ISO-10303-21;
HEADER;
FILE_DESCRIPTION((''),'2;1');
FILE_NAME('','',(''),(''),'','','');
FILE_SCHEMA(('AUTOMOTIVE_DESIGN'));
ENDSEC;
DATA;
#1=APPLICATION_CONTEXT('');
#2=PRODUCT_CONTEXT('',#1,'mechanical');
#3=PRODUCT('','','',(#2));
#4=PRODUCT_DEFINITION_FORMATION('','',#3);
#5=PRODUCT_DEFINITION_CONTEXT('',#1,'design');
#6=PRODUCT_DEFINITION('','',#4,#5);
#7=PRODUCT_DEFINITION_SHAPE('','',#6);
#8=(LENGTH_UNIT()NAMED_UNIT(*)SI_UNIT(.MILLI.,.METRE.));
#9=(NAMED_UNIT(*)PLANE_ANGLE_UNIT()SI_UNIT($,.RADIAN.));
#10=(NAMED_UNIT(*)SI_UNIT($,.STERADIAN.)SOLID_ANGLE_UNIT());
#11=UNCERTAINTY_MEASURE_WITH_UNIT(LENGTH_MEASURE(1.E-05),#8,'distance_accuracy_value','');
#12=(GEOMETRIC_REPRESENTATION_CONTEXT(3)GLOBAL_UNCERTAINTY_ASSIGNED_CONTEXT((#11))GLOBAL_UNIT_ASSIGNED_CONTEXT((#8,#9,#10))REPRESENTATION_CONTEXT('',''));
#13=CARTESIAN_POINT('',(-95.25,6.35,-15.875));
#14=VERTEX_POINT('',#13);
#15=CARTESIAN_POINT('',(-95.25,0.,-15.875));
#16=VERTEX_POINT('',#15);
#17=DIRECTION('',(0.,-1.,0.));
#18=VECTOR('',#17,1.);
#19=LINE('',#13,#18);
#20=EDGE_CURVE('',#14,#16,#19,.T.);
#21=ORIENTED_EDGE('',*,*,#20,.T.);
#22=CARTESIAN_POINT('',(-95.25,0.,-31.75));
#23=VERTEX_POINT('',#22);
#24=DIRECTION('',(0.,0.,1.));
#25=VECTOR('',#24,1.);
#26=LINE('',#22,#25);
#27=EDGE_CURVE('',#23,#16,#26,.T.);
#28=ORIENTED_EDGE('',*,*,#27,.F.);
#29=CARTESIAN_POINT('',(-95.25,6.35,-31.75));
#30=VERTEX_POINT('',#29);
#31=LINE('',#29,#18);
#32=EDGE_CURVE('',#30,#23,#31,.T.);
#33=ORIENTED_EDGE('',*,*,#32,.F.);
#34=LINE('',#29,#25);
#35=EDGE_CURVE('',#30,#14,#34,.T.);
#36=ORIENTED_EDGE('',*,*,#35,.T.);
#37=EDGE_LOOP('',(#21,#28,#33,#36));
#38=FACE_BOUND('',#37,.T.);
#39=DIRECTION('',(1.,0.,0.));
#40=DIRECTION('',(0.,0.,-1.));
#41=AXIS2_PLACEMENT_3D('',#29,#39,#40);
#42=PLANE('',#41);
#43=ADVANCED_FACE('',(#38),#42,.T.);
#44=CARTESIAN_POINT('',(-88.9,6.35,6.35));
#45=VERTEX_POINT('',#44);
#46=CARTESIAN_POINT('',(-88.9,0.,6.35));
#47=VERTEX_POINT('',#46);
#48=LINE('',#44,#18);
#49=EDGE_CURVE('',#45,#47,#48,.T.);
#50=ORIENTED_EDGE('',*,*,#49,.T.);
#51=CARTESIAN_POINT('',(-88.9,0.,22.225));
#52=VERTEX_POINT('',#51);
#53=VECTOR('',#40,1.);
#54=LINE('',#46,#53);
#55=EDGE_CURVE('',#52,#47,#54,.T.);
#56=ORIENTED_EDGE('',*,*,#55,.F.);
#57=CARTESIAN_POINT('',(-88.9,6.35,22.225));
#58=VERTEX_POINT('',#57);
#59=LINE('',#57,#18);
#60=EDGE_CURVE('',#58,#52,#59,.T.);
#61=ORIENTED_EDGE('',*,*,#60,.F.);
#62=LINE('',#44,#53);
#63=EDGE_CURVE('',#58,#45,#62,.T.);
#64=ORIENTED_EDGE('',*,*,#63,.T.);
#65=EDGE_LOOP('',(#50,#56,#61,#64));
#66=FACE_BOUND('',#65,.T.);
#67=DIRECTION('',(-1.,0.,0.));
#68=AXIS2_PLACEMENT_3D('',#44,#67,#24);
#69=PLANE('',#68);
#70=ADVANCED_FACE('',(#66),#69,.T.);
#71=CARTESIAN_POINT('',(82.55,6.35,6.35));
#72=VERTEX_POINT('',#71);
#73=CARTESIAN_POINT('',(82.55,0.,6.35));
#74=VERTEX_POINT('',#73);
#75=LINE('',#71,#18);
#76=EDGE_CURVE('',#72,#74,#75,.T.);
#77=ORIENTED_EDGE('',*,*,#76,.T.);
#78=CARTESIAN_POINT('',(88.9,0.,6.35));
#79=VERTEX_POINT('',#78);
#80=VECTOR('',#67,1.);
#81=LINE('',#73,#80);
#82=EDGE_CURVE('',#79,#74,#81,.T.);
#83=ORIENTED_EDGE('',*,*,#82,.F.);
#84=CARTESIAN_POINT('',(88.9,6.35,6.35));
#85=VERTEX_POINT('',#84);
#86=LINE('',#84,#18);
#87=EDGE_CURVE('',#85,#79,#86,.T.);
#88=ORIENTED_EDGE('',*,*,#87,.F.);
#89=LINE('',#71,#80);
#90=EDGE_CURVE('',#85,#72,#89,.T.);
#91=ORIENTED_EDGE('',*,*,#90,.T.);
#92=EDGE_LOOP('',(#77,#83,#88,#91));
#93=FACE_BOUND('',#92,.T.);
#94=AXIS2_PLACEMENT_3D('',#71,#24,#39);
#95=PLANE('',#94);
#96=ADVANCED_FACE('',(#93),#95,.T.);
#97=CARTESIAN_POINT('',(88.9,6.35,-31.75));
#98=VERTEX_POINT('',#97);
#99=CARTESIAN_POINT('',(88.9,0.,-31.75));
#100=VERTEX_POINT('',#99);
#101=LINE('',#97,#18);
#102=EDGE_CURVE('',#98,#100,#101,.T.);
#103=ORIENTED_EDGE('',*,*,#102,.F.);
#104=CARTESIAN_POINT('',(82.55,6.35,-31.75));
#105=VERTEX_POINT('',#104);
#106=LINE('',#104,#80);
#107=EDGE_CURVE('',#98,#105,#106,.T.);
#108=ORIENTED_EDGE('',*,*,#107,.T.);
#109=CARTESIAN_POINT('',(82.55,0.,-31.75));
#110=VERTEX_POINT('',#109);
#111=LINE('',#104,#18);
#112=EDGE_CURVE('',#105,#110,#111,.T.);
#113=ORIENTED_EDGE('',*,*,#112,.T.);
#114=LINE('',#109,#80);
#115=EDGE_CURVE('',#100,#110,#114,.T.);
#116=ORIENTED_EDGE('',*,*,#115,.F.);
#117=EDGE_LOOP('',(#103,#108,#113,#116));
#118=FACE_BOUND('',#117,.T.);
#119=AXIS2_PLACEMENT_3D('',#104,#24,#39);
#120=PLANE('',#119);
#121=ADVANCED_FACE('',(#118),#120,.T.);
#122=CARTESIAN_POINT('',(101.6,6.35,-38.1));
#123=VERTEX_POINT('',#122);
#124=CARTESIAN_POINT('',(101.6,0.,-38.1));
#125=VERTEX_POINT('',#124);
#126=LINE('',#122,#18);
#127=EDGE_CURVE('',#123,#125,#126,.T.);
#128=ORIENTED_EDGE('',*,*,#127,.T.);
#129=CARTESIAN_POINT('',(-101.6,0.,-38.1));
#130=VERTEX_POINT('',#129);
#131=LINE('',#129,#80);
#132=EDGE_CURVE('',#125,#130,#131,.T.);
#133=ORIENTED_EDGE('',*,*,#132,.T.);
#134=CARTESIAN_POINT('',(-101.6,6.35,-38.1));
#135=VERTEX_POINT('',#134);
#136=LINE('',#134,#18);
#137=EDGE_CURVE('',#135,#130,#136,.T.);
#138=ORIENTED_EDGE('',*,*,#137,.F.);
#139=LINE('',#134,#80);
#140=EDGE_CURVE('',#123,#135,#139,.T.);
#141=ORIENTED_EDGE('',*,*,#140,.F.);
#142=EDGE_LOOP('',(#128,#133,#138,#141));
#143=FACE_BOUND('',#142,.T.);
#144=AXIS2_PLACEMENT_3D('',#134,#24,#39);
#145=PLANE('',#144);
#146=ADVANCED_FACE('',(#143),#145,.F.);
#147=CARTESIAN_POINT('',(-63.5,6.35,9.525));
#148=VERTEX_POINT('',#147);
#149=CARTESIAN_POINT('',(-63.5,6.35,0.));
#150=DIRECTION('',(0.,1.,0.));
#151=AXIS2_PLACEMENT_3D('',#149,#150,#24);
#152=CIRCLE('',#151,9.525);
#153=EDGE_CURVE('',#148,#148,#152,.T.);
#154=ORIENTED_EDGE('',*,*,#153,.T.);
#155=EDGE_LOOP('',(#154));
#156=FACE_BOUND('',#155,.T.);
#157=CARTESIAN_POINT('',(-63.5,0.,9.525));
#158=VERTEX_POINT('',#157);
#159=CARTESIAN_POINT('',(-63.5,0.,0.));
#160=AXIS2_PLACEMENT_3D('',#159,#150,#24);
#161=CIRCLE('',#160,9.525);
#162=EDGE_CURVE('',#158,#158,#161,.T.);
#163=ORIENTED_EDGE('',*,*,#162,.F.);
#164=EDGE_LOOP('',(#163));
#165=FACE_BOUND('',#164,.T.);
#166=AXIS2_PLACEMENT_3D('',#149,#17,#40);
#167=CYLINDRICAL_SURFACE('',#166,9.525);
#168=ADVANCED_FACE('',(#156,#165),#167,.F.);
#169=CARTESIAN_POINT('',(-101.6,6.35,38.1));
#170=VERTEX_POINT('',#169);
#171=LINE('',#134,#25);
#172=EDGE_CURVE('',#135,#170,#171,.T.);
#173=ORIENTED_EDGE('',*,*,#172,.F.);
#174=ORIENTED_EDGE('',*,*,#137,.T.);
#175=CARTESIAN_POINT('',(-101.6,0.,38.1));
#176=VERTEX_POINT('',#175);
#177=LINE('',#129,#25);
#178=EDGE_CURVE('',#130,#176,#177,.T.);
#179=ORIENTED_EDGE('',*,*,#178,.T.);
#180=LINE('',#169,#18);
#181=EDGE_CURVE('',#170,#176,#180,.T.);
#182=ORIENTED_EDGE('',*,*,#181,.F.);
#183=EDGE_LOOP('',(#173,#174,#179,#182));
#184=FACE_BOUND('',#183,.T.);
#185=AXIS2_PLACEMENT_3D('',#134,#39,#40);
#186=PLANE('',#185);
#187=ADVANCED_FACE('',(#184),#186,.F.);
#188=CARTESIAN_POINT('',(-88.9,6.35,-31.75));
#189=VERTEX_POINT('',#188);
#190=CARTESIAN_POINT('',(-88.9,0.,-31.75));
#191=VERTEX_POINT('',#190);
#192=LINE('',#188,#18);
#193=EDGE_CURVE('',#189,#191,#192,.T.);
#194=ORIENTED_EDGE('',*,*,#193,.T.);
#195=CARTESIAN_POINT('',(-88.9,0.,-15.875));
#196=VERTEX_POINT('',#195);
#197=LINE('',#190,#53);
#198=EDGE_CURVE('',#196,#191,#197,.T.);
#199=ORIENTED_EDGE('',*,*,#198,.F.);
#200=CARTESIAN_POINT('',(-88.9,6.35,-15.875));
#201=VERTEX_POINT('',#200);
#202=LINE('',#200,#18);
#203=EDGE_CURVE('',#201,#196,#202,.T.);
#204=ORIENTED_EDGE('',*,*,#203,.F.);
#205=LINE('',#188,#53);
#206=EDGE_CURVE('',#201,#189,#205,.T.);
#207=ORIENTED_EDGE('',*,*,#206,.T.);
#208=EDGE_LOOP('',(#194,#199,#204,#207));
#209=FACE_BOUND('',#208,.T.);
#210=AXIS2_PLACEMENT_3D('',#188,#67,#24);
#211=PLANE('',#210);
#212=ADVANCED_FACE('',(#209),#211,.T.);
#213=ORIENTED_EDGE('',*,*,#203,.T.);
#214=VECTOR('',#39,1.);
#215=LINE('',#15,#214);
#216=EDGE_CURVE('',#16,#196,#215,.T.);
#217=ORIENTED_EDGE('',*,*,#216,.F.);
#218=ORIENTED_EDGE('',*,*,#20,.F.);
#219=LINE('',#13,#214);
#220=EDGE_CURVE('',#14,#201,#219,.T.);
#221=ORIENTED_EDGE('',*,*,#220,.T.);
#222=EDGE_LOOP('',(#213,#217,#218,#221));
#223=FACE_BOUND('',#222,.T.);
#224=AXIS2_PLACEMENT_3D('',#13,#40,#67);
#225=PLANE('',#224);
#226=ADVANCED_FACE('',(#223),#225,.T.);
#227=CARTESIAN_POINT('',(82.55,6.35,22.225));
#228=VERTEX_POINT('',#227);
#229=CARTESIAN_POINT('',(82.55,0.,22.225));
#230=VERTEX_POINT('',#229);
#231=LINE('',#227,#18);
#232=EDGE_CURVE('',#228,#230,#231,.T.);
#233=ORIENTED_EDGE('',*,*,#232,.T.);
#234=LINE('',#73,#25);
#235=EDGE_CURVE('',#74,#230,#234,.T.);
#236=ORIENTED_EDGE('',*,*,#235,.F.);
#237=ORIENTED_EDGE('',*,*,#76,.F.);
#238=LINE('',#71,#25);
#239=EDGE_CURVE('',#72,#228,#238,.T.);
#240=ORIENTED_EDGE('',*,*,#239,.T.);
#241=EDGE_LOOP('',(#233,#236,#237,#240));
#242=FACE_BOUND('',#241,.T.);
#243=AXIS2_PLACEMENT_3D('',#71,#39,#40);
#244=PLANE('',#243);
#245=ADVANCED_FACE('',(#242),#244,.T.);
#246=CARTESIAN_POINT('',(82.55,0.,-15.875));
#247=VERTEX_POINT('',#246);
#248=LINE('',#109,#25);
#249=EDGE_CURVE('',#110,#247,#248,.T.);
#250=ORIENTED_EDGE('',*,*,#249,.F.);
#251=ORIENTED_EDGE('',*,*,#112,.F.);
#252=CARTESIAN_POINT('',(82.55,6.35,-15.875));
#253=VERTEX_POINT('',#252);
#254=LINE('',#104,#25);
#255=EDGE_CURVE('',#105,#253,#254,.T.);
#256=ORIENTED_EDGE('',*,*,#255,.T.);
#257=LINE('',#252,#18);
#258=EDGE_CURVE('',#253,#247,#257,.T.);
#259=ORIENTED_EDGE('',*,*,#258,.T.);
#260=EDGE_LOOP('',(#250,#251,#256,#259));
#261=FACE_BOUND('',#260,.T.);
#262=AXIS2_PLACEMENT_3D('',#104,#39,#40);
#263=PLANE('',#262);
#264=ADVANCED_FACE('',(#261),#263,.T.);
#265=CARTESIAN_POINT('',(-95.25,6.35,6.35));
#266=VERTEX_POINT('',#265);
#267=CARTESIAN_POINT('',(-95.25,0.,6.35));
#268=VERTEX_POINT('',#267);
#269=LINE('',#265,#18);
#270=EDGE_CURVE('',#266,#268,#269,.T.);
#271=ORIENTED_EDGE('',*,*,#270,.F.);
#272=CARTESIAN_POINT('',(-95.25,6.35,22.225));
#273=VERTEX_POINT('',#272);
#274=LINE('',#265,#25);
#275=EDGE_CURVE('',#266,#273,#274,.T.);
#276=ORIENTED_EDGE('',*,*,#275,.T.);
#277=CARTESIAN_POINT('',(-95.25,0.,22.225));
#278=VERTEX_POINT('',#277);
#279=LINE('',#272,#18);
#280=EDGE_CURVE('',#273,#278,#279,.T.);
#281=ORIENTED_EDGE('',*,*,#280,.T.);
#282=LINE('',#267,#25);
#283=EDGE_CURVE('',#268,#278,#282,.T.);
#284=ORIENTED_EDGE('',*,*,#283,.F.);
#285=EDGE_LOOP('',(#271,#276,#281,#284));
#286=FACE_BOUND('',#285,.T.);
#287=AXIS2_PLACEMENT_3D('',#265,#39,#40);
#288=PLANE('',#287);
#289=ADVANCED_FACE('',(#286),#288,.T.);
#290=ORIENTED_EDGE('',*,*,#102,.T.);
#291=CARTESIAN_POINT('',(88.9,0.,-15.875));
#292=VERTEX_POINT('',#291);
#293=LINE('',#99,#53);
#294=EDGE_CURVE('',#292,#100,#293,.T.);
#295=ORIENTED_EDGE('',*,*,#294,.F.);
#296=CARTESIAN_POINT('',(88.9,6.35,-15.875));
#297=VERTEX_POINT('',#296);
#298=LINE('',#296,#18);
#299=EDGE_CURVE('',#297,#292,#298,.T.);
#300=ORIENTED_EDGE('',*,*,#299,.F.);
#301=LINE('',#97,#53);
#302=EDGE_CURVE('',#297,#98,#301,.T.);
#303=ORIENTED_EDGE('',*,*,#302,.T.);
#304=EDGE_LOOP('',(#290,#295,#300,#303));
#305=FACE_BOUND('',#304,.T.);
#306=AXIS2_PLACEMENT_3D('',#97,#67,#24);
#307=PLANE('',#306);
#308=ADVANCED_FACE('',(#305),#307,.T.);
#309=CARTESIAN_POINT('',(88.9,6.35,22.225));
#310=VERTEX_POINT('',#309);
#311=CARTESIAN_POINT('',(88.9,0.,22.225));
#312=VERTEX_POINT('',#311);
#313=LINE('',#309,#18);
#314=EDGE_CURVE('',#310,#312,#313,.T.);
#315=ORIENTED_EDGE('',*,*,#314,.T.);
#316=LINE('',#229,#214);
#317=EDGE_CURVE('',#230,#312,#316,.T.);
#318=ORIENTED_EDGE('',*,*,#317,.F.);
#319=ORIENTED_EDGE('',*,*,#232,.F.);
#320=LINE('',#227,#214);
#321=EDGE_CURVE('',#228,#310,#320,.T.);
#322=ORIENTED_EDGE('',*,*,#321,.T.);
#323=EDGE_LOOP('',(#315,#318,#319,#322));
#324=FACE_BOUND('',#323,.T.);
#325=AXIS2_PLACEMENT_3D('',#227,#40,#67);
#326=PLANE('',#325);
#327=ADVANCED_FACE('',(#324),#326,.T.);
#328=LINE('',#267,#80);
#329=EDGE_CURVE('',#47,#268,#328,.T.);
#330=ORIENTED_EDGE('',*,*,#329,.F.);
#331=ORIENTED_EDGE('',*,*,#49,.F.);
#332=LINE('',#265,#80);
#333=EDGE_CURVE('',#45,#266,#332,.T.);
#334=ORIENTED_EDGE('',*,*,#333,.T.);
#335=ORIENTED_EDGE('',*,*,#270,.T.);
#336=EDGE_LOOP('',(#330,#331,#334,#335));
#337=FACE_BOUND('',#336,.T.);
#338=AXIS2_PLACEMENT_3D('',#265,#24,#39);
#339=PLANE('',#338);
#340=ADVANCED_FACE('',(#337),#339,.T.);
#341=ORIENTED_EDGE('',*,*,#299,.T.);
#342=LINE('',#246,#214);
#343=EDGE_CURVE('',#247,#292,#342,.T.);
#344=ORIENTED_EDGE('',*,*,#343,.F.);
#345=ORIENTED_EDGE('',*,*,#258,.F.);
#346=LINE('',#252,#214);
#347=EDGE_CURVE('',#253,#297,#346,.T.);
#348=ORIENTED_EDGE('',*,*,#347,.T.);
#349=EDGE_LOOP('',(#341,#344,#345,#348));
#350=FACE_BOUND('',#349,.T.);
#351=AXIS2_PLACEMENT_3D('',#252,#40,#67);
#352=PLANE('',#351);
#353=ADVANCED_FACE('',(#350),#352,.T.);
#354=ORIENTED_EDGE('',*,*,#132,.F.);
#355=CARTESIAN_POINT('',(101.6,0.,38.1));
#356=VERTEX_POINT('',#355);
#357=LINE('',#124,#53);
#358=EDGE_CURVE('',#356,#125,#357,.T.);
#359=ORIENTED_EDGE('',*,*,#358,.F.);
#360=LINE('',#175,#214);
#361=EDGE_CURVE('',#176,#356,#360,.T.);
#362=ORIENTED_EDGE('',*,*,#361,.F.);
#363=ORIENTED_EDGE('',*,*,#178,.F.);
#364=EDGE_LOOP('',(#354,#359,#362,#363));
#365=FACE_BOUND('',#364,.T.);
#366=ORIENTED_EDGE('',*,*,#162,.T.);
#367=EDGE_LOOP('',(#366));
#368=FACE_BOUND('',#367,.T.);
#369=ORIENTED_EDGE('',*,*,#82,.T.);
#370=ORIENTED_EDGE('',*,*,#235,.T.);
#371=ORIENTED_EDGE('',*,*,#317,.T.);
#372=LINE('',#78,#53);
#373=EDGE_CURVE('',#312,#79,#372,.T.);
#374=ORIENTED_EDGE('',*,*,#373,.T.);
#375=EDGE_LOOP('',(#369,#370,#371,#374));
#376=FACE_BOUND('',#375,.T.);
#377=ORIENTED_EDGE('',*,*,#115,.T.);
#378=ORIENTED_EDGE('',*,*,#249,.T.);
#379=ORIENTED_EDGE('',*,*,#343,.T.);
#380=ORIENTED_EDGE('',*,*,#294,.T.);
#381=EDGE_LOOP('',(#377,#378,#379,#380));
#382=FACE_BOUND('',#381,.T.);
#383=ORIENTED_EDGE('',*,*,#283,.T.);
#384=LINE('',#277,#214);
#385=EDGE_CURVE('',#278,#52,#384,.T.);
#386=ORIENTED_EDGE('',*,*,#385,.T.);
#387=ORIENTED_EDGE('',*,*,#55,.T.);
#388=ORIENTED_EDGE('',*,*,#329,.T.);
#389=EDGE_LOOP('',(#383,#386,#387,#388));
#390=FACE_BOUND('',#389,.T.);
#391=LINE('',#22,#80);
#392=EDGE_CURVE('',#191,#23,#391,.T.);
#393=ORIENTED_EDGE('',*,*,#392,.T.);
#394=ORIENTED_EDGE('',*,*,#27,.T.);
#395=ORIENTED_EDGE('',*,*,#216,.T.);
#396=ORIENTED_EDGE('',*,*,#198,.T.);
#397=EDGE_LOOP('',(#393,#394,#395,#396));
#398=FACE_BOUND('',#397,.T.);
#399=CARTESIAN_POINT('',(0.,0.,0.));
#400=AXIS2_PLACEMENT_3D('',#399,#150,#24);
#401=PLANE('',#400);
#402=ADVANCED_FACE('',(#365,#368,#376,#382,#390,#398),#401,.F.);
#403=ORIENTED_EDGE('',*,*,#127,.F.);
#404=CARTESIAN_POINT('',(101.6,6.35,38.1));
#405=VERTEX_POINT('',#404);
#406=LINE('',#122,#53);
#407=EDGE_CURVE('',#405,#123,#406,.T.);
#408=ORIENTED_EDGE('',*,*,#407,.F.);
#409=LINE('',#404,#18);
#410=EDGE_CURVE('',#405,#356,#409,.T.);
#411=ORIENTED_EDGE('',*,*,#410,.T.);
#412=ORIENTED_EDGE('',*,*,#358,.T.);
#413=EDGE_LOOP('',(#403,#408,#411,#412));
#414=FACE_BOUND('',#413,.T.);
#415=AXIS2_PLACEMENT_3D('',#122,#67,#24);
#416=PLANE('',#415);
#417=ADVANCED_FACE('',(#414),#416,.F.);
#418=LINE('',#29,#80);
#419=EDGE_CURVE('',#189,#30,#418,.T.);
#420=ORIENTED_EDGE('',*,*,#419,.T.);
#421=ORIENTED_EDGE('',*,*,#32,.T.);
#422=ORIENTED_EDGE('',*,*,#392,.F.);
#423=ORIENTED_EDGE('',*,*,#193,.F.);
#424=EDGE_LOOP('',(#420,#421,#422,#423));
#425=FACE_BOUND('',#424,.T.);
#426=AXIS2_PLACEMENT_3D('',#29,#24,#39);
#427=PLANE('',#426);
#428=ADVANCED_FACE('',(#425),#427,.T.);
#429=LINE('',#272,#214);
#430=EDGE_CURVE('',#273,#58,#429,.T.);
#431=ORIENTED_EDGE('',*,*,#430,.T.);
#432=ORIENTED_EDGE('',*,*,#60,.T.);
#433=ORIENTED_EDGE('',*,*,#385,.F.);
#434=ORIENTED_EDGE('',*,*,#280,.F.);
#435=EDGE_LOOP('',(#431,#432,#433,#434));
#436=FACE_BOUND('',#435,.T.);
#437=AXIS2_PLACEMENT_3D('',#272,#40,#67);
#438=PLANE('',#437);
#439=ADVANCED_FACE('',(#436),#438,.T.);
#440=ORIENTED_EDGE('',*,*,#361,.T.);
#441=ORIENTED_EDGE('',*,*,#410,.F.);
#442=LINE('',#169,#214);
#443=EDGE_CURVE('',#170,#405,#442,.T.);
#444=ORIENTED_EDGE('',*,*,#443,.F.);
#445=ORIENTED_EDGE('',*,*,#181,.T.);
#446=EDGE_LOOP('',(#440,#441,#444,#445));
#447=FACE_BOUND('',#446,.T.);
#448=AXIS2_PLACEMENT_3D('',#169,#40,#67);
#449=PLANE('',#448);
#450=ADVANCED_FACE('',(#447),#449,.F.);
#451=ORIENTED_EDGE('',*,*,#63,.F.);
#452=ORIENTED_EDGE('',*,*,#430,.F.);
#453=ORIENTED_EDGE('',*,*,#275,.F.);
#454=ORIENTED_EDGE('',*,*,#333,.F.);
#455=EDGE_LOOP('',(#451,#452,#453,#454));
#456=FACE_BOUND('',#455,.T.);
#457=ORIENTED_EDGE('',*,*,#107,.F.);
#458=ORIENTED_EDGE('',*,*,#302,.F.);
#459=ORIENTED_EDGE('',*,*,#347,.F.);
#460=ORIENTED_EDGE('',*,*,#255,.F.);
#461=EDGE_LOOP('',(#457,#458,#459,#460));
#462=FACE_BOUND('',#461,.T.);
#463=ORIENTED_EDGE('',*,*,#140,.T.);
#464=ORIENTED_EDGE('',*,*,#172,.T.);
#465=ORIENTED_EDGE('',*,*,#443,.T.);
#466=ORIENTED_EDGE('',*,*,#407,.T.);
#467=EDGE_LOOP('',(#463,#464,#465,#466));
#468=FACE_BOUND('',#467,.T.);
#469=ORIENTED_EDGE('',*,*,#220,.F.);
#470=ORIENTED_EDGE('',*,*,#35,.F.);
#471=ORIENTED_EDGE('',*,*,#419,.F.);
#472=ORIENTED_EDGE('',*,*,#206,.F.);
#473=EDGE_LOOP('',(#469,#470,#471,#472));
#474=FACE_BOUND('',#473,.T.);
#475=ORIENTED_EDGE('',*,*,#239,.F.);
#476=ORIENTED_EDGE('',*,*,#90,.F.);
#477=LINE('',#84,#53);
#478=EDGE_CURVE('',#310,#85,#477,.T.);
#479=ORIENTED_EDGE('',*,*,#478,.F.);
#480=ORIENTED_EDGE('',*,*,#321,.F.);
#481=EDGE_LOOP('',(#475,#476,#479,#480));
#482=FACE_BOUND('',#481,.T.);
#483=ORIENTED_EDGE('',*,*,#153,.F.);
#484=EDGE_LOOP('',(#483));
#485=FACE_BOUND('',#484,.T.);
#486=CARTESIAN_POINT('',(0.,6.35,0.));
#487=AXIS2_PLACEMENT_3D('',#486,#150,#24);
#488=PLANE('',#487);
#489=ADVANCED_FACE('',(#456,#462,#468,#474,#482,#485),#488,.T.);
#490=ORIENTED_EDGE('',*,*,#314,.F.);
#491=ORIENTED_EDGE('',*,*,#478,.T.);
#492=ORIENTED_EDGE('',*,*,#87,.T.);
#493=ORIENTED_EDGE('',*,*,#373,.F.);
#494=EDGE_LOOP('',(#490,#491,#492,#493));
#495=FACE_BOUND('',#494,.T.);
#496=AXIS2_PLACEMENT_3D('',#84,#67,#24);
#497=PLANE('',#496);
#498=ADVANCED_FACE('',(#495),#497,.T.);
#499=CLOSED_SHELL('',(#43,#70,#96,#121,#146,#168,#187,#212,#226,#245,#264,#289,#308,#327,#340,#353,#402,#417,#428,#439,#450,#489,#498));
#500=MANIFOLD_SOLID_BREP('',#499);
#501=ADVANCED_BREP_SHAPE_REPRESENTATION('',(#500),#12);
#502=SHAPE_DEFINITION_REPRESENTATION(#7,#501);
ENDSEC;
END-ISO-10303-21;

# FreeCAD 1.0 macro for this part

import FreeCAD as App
import Part
import Sketcher

V = App.Vector
Q = App.Units.Quantity


def add_polygon(sketch, points):
    """Adds a closed chain of lines whose ends are joined by coincident constraints."""
    first, n = sketch.GeometryCount, len(points)
    for a, b in zip(points, points[1:] + points[:1]):
        sketch.addGeometry(Part.LineSegment(App.Vector(*a, 0), App.Vector(*b, 0)), False)
    for i in range(n):
        sketch.addConstraint(Sketcher.Constraint("Coincident", first + i, 2, first + (i + 1) % n, 1))

doc = App.newDocument("Part")
params = doc.addObject("Spreadsheet::Sheet", "Params")
for row, (alias, value) in enumerate([
    ("sketch1_diameter", "0.75 in"),
    ("sketch1_width", "8 in"),
    ("sketch1_height", "3 in"),
    ("sketch1_width2", "0.25 in"),
    ("sketch1_height2", "0.625 in"),
    ("pad1_length", "0.25 in"),
], start=1):
    params.set(f"A{row}", alias)
    params.set(f"B{row}", "=" + value)
    params.setAlias(f"B{row}", alias)

body = doc.addObject("PartDesign::Body", "Body")

sketch1 = body.newObject("Sketcher::SketchObject", "Sketch")
sketch1.AttachmentSupport = (doc.getObject("XZ_Plane"), [""])
sketch1.MapMode = "FlatFace"
add_polygon(sketch1, [(-101.6, -38.1), (-101.6, 38.1), (101.6, 38.1), (101.6, -38.1)])
add_polygon(sketch1, [(-88.9, 22.225), (-95.25, 22.225), (-95.25, 6.35), (-88.9, 6.35)])
sketch1.addGeometry(Part.Circle(V(-63.5, 0, 0), V(0, 0, 1), 9.525), False)
add_polygon(sketch1, [(88.9, 22.225), (82.55, 22.225), (82.55, 6.35), (88.9, 6.35)])
add_polygon(sketch1, [(-88.9, -15.875), (-95.25, -15.875), (-95.25, -31.75), (-88.9, -31.75)])
add_polygon(sketch1, [(88.9, -15.875), (82.55, -15.875), (82.55, -31.75), (88.9, -31.75)])
sketch1.addConstraint([
    Sketcher.Constraint("Vertical", 0),
    Sketcher.Constraint("Horizontal", 1),
    Sketcher.Constraint("Vertical", 2),
    Sketcher.Constraint("Horizontal", 3),
    Sketcher.Constraint("Horizontal", 4),
    Sketcher.Constraint("Vertical", 5),
    Sketcher.Constraint("Horizontal", 6),
    Sketcher.Constraint("Vertical", 7),
    Sketcher.Constraint("Horizontal", 9),
    Sketcher.Constraint("Vertical", 10),
    Sketcher.Constraint("Horizontal", 11),
    Sketcher.Constraint("Vertical", 12),
    Sketcher.Constraint("Horizontal", 13),
    Sketcher.Constraint("Vertical", 14),
    Sketcher.Constraint("Horizontal", 15),
    Sketcher.Constraint("Vertical", 16),
    Sketcher.Constraint("Horizontal", 17),
    Sketcher.Constraint("Vertical", 18),
    Sketcher.Constraint("Horizontal", 19),
    Sketcher.Constraint("Vertical", 20),
    Sketcher.Constraint("Symmetric", 0, 2, 2, 2, -1, 1),
    Sketcher.Constraint("Symmetric", 6, 2, 11, 2, -2),
    Sketcher.Constraint("Symmetric", 15, 2, 19, 2, -2),
    Sketcher.Constraint("PointOnObject", 8, 3, -1),
    Sketcher.Constraint("Horizontal", 7, 2, 9, 2),
    Sketcher.Constraint("Horizontal", 16, 2, 17, 2),
    Sketcher.Constraint("Vertical", 5, 2, 13, 2),
    Sketcher.Constraint("Vertical", 7, 2, 15, 2),
    Sketcher.Constraint("Vertical", 10, 2, 17, 2),
    Sketcher.Constraint("Equal", 6, 9),
    Sketcher.Constraint("Equal", 12, 14),
    Sketcher.Constraint("Diameter", 8, Q("0.75 in")),
    Sketcher.Constraint("DistanceX", 1, 1, 1, 2, Q("8 in")),
    Sketcher.Constraint("DistanceY", 0, 1, 0, 2, Q("3 in")),
    Sketcher.Constraint("DistanceX", 6, 2, 8, 3, Q("1 in")),
    Sketcher.Constraint("DistanceX", 8, 3, 11, 2, Q("6 in")),
    Sketcher.Constraint("DistanceX", 4, 2, 4, 1, Q("0.25 in")),
    Sketcher.Constraint("DistanceY", 13, 2, 4, 2, Q("1.5 in")),
    Sketcher.Constraint("DistanceY", 5, 2, 5, 1, Q("0.625 in")),
    Sketcher.Constraint("DistanceY", -1, 1, 5, 2, Q("0.25 in")),
])
sketch1.setExpression("Constraints[51]", "Params.sketch1_diameter")
sketch1.setExpression("Constraints[52]", "Params.sketch1_width")
sketch1.setExpression("Constraints[53]", "Params.sketch1_height")
sketch1.setExpression("Constraints[56]", "Params.sketch1_width2")
sketch1.setExpression("Constraints[58]", "Params.sketch1_height2")
pad1 = body.newObject("PartDesign::Pad", "Pad")
pad1.Profile = sketch1
pad1.setExpression("Length", "Params.pad1_length")
pad1.Reversed = True

doc.recompute()
